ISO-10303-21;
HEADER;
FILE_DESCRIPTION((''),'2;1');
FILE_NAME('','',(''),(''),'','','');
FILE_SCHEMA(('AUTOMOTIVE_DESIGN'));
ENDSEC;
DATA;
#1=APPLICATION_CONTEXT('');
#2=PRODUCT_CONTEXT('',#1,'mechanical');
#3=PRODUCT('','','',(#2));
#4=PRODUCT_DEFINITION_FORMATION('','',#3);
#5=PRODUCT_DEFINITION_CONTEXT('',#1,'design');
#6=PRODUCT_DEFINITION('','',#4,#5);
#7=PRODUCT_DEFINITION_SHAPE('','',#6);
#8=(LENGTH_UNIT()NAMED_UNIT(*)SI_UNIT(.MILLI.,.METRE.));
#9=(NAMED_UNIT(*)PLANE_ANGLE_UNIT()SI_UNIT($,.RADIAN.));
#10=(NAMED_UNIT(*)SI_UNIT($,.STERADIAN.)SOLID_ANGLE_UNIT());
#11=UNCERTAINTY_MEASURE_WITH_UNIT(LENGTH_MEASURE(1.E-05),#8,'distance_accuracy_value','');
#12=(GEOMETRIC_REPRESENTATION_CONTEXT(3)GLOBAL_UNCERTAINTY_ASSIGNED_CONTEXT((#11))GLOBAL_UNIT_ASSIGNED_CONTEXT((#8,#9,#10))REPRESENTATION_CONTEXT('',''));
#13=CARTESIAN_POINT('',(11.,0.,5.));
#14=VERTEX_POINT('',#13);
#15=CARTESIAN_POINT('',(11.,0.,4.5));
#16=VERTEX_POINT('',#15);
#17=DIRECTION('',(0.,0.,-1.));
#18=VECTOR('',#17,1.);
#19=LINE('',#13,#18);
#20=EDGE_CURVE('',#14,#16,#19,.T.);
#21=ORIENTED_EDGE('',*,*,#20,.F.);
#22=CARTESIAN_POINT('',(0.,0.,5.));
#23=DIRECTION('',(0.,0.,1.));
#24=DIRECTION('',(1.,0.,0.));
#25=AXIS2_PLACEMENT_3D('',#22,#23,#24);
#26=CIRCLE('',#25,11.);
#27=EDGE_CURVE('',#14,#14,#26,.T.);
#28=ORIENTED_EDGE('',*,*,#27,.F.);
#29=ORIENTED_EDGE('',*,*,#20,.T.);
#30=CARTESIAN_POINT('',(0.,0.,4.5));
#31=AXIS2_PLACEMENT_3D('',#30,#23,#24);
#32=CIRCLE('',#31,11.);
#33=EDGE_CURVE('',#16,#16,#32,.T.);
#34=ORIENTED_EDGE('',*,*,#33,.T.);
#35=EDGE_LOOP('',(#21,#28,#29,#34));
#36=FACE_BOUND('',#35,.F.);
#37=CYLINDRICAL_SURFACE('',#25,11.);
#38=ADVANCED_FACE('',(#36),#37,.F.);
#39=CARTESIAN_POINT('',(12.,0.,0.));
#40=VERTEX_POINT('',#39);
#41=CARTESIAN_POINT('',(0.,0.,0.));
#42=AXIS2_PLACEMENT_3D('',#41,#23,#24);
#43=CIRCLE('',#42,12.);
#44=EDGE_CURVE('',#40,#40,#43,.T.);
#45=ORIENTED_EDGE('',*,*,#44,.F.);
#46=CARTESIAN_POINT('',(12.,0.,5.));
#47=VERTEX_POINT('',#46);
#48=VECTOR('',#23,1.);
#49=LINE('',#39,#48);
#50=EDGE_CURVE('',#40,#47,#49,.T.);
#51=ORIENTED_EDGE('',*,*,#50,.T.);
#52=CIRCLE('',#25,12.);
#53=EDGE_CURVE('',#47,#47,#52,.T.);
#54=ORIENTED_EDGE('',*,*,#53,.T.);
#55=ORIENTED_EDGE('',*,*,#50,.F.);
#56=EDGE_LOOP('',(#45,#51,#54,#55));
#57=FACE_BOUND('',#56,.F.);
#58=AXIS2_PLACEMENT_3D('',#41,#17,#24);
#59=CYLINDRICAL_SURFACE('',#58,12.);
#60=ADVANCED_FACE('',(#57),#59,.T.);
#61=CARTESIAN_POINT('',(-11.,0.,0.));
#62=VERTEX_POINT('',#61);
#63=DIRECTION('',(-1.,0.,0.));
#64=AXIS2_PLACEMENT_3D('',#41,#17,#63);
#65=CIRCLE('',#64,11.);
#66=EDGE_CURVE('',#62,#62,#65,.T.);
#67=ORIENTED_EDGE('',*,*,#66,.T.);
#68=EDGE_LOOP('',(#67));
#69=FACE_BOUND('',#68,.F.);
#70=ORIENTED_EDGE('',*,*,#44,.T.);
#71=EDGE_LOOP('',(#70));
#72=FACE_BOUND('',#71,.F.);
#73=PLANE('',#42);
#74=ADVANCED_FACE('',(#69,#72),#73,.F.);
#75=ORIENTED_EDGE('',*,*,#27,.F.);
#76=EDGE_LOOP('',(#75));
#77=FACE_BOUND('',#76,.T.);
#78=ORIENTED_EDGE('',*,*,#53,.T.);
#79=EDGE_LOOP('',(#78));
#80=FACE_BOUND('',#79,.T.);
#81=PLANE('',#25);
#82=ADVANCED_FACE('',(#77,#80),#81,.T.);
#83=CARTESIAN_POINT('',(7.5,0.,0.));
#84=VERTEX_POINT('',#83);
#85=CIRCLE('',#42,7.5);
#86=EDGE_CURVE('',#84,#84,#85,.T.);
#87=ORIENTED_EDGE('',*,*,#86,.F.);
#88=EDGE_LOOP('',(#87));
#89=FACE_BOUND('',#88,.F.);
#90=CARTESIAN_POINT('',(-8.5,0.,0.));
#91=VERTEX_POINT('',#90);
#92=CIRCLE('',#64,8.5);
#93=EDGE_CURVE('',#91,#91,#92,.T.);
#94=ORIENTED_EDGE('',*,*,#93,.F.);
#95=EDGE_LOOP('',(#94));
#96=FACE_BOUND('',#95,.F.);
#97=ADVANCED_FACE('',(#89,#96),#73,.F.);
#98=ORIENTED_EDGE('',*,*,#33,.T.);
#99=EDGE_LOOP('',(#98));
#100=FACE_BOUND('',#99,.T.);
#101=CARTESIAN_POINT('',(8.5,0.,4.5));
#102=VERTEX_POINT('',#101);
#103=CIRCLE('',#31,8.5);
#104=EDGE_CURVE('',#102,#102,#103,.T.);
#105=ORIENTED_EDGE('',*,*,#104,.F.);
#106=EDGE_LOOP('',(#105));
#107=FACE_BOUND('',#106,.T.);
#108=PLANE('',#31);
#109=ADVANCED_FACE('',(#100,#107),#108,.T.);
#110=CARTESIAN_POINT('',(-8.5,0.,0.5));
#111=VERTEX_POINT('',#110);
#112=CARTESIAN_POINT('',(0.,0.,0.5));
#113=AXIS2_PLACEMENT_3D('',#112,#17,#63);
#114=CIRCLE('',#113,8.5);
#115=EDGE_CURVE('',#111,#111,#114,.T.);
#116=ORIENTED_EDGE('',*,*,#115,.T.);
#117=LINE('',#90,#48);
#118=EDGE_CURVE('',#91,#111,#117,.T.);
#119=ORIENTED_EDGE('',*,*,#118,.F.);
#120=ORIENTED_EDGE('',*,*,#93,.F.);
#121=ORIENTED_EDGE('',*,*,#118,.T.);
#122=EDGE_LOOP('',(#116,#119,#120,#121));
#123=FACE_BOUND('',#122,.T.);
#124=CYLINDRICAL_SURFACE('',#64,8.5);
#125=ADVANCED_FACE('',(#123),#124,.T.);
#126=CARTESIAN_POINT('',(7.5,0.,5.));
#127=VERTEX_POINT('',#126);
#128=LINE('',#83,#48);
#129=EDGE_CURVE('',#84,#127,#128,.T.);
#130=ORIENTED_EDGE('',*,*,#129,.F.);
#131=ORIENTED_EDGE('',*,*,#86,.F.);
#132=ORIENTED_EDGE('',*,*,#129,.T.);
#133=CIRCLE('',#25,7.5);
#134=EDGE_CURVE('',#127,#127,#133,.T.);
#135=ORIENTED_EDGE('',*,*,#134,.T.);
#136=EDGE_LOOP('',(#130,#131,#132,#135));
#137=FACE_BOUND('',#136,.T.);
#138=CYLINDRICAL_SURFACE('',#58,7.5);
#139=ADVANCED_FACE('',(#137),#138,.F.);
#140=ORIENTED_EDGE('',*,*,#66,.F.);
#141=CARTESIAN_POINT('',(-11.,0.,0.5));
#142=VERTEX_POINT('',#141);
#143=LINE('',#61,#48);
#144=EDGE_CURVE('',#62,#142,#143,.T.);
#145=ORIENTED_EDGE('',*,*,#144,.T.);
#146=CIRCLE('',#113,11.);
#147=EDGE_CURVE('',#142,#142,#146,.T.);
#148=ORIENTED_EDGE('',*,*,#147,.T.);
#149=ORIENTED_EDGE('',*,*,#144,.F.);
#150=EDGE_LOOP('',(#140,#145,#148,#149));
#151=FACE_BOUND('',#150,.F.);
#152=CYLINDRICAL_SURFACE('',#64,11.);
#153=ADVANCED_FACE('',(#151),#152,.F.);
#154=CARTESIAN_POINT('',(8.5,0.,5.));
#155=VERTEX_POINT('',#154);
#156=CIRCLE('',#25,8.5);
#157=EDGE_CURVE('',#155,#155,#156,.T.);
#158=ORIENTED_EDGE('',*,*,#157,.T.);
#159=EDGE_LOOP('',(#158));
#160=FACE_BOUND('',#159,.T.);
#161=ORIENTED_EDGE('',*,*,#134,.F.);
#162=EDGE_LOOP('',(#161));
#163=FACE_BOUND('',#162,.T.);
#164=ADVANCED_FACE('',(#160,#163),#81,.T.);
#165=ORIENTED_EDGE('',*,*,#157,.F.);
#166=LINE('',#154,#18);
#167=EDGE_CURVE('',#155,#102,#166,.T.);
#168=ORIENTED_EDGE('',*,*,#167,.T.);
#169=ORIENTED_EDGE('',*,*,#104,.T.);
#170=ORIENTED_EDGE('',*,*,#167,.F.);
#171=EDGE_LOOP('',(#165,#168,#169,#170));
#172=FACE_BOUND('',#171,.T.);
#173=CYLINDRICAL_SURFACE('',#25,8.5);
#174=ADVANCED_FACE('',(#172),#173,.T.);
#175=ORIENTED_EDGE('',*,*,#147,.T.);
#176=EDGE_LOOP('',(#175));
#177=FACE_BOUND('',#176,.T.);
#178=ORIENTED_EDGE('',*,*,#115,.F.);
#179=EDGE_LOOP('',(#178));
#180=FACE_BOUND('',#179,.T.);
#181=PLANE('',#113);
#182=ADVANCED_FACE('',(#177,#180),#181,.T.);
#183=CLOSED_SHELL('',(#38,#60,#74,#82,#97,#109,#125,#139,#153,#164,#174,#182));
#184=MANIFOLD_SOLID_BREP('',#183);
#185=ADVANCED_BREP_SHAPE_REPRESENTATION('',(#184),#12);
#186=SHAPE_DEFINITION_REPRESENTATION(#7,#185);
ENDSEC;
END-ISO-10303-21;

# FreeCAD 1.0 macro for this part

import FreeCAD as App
import Part
import Sketcher
from FreeCAD import Vector

doc = App.newDocument("Part")
body = doc.addObject("PartDesign::Body", "Body")

# Sketch on XY plane
sketch1 = body.newObject("Sketcher::SketchObject", "Sketch")
sketch1.AttachmentSupport = (doc.getObject("XY_Plane"), [""])
sketch1.MapMode = "FlatFace"
sketch1.addGeometry([
    Part.Circle(Vector(0, 0, 0), Vector(0, 0, 1), 12),
    Part.Circle(Vector(0, 0, 0), Vector(0, 0, 1), 8),
], False)
sketch1.addConstraint([
    Sketcher.Constraint("Coincident", 0, 3, -1, 1),
    Sketcher.Constraint("Coincident", 1, 3, -1, 1),
    Sketcher.Constraint("Diameter", 0, 24.0),
    Sketcher.Constraint("Diameter", 1, 15.0),
])
pad1 = body.newObject("PartDesign::Pad", "Pad")
pad1.Profile = sketch1
pad1.Length = 5

# Sketch on XY plane
sketch2 = body.newObject("Sketcher::SketchObject", "Sketch001")
sketch2.AttachmentSupport = (doc.getObject("XY_Plane"), [""])
sketch2.MapMode = "FlatFace"
sketch2.AttachmentOffset = App.Placement(Vector(0, 0, 5), App.Rotation())
sketch2.addGeometry([
    Part.Circle(Vector(0, 0, 0), Vector(0, 0, 1), 11),
    Part.Circle(Vector(0, 0, 0), Vector(0, 0, 1), 8),
], False)
sketch2.addConstraint([
    Sketcher.Constraint("Coincident", 0, 3, -1, 1),
    Sketcher.Constraint("Coincident", 1, 3, -1, 1),
    Sketcher.Constraint("Diameter", 0, 22.0),
    Sketcher.Constraint("Diameter", 1, 17.0),
])
pocket1 = body.newObject("PartDesign::Pocket", "Pocket")
pocket1.Profile = sketch2
pocket1.Length = 0.5

# Sketch on XY plane
sketch3 = body.newObject("Sketcher::SketchObject", "Sketch002")
sketch3.AttachmentSupport = (doc.getObject("XY_Plane"), [""])
sketch3.MapMode = "FlatFace"
sketch3.addGeometry([
    Part.Circle(Vector(0, 0, 0), Vector(0, 0, 1), 11),
    Part.Circle(Vector(0, 0, 0), Vector(0, 0, 1), 8),
], False)
sketch3.addConstraint([
    Sketcher.Constraint("Coincident", 0, 3, -1, 1),
    Sketcher.Constraint("Coincident", 1, 3, -1, 1),
    Sketcher.Constraint("Diameter", 0, 22.0),
    Sketcher.Constraint("Diameter", 1, 17.0),
])
pocket2 = body.newObject("PartDesign::Pocket", "Pocket001")
pocket2.Profile = sketch3
pocket2.Length = 0.5
pocket2.Reversed = True

doc.recompute()
